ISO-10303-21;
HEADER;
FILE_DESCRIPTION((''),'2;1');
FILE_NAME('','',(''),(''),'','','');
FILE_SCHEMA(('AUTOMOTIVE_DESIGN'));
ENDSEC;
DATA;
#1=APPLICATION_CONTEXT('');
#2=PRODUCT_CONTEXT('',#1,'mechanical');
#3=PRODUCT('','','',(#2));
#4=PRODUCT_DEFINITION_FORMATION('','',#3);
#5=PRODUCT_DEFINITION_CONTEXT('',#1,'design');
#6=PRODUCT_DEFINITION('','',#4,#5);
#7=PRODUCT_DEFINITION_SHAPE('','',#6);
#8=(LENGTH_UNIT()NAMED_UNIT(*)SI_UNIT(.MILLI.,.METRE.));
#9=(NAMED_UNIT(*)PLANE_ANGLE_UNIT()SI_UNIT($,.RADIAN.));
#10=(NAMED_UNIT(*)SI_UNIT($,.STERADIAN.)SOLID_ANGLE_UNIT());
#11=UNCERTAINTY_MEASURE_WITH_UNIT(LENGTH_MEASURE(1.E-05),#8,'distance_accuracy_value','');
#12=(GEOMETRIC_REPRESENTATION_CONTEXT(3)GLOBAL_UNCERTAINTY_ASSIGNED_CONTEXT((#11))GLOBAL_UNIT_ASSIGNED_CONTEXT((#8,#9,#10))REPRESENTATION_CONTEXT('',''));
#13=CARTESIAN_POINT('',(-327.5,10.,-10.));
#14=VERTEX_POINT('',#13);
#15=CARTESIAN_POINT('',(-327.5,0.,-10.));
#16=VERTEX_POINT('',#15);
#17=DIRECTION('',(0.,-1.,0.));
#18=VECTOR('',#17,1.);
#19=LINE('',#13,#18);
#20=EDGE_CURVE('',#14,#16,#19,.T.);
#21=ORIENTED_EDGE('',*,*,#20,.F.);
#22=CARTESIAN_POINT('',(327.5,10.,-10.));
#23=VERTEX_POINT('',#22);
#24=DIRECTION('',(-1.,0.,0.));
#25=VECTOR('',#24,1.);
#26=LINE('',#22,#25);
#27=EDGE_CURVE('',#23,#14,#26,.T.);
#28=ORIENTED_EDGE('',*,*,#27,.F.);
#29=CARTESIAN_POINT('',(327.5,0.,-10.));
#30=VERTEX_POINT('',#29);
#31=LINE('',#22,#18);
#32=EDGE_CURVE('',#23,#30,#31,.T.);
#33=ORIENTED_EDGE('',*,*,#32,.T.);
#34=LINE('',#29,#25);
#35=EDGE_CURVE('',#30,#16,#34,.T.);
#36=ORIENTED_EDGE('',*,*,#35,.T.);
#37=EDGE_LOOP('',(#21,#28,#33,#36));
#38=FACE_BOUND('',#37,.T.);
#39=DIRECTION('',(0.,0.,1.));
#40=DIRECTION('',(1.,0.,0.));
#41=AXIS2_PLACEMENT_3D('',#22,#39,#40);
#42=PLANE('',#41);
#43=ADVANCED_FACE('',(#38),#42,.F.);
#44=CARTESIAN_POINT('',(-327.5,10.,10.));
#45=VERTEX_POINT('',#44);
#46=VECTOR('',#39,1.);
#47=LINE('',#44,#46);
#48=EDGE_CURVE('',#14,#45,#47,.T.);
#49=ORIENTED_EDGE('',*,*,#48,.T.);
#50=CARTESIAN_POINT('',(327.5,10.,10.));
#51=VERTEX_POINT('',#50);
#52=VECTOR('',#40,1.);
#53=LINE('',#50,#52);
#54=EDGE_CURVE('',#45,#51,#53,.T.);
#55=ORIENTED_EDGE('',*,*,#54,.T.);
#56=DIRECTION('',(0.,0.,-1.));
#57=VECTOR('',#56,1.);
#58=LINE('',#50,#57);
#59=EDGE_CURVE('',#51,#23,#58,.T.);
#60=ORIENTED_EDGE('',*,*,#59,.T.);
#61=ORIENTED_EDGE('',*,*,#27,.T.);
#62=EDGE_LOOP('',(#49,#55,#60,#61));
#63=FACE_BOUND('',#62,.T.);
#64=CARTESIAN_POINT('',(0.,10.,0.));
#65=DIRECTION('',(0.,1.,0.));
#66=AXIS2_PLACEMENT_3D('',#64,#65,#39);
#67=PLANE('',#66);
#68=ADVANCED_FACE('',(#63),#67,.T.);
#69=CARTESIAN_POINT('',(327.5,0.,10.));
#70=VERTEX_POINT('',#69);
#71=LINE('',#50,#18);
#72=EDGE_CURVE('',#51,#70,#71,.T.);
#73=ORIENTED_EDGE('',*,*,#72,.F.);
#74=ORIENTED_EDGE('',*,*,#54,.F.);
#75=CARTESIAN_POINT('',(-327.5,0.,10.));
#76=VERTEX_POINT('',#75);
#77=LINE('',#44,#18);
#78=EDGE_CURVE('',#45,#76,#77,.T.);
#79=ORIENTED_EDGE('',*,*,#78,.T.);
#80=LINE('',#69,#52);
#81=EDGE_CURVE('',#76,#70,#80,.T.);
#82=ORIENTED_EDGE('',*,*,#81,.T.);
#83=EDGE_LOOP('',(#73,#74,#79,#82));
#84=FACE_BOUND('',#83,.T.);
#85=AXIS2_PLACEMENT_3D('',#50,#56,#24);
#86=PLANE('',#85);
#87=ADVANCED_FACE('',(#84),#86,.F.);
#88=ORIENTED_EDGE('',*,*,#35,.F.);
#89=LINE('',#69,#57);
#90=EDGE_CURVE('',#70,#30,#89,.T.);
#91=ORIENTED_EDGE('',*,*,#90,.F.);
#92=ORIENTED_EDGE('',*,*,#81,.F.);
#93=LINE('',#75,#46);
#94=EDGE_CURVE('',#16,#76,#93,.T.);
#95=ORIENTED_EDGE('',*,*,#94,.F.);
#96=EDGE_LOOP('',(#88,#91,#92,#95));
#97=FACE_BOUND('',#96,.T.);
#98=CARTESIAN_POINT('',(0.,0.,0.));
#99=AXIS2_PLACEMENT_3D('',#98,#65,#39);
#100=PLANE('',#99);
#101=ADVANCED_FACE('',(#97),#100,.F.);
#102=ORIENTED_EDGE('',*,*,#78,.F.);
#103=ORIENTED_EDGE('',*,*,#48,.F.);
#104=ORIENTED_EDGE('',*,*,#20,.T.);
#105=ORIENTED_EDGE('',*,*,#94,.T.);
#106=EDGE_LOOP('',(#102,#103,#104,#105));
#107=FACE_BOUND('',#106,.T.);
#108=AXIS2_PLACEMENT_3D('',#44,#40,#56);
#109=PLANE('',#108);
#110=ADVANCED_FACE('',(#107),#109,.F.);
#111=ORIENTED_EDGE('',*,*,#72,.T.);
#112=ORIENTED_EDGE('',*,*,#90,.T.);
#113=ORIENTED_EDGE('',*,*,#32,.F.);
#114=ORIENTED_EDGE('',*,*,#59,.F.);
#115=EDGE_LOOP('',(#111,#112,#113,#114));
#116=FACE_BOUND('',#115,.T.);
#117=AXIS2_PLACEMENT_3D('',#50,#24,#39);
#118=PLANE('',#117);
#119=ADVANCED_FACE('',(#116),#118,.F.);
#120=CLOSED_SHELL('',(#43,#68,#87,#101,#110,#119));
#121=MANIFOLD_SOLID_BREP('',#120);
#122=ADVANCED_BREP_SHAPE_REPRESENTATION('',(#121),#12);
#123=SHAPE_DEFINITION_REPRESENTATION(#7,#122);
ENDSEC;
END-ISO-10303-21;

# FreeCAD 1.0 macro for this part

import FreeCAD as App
import Part
import Sketcher
from FreeCAD import Vector


def add_polygon(sketch, points):
    """Adds a closed chain of lines whose ends are joined by coincident constraints."""
    first, n = sketch.GeometryCount, len(points)
    for a, b in zip(points, points[1:] + points[:1]):
        sketch.addGeometry(Part.LineSegment(App.Vector(*a, 0), App.Vector(*b, 0)), False)
    for i in range(n):
        sketch.addConstraint(Sketcher.Constraint("Coincident", first + i, 2, first + (i + 1) % n, 1))

doc = App.newDocument("Part")
body = doc.addObject("PartDesign::Body", "Body")

# Sketch on XZ plane
sketch1 = body.newObject("Sketcher::SketchObject", "Sketch")
sketch1.AttachmentSupport = (doc.getObject("XZ_Plane"), [""])
sketch1.MapMode = "FlatFace"
add_polygon(sketch1, [(-328, -10), (-328, 10), (328, 10), (328, -10)])  # lines 0-3
sketch1.addConstraint([
    Sketcher.Constraint("Vertical", 0),
    Sketcher.Constraint("Horizontal", 1),
    Sketcher.Constraint("Vertical", 2),
    Sketcher.Constraint("Horizontal", 3),
    Sketcher.Constraint("Symmetric", 0, 2, 2, 2, -1, 1),
    Sketcher.Constraint("DistanceX", 1, 1, 1, 2, 655.0),
    Sketcher.Constraint("DistanceY", 0, 1, 0, 2, 20.0),
])
pad1 = body.newObject("PartDesign::Pad", "Pad")
pad1.Profile = sketch1
pad1.Length = 10
pad1.Reversed = True

doc.recompute()
